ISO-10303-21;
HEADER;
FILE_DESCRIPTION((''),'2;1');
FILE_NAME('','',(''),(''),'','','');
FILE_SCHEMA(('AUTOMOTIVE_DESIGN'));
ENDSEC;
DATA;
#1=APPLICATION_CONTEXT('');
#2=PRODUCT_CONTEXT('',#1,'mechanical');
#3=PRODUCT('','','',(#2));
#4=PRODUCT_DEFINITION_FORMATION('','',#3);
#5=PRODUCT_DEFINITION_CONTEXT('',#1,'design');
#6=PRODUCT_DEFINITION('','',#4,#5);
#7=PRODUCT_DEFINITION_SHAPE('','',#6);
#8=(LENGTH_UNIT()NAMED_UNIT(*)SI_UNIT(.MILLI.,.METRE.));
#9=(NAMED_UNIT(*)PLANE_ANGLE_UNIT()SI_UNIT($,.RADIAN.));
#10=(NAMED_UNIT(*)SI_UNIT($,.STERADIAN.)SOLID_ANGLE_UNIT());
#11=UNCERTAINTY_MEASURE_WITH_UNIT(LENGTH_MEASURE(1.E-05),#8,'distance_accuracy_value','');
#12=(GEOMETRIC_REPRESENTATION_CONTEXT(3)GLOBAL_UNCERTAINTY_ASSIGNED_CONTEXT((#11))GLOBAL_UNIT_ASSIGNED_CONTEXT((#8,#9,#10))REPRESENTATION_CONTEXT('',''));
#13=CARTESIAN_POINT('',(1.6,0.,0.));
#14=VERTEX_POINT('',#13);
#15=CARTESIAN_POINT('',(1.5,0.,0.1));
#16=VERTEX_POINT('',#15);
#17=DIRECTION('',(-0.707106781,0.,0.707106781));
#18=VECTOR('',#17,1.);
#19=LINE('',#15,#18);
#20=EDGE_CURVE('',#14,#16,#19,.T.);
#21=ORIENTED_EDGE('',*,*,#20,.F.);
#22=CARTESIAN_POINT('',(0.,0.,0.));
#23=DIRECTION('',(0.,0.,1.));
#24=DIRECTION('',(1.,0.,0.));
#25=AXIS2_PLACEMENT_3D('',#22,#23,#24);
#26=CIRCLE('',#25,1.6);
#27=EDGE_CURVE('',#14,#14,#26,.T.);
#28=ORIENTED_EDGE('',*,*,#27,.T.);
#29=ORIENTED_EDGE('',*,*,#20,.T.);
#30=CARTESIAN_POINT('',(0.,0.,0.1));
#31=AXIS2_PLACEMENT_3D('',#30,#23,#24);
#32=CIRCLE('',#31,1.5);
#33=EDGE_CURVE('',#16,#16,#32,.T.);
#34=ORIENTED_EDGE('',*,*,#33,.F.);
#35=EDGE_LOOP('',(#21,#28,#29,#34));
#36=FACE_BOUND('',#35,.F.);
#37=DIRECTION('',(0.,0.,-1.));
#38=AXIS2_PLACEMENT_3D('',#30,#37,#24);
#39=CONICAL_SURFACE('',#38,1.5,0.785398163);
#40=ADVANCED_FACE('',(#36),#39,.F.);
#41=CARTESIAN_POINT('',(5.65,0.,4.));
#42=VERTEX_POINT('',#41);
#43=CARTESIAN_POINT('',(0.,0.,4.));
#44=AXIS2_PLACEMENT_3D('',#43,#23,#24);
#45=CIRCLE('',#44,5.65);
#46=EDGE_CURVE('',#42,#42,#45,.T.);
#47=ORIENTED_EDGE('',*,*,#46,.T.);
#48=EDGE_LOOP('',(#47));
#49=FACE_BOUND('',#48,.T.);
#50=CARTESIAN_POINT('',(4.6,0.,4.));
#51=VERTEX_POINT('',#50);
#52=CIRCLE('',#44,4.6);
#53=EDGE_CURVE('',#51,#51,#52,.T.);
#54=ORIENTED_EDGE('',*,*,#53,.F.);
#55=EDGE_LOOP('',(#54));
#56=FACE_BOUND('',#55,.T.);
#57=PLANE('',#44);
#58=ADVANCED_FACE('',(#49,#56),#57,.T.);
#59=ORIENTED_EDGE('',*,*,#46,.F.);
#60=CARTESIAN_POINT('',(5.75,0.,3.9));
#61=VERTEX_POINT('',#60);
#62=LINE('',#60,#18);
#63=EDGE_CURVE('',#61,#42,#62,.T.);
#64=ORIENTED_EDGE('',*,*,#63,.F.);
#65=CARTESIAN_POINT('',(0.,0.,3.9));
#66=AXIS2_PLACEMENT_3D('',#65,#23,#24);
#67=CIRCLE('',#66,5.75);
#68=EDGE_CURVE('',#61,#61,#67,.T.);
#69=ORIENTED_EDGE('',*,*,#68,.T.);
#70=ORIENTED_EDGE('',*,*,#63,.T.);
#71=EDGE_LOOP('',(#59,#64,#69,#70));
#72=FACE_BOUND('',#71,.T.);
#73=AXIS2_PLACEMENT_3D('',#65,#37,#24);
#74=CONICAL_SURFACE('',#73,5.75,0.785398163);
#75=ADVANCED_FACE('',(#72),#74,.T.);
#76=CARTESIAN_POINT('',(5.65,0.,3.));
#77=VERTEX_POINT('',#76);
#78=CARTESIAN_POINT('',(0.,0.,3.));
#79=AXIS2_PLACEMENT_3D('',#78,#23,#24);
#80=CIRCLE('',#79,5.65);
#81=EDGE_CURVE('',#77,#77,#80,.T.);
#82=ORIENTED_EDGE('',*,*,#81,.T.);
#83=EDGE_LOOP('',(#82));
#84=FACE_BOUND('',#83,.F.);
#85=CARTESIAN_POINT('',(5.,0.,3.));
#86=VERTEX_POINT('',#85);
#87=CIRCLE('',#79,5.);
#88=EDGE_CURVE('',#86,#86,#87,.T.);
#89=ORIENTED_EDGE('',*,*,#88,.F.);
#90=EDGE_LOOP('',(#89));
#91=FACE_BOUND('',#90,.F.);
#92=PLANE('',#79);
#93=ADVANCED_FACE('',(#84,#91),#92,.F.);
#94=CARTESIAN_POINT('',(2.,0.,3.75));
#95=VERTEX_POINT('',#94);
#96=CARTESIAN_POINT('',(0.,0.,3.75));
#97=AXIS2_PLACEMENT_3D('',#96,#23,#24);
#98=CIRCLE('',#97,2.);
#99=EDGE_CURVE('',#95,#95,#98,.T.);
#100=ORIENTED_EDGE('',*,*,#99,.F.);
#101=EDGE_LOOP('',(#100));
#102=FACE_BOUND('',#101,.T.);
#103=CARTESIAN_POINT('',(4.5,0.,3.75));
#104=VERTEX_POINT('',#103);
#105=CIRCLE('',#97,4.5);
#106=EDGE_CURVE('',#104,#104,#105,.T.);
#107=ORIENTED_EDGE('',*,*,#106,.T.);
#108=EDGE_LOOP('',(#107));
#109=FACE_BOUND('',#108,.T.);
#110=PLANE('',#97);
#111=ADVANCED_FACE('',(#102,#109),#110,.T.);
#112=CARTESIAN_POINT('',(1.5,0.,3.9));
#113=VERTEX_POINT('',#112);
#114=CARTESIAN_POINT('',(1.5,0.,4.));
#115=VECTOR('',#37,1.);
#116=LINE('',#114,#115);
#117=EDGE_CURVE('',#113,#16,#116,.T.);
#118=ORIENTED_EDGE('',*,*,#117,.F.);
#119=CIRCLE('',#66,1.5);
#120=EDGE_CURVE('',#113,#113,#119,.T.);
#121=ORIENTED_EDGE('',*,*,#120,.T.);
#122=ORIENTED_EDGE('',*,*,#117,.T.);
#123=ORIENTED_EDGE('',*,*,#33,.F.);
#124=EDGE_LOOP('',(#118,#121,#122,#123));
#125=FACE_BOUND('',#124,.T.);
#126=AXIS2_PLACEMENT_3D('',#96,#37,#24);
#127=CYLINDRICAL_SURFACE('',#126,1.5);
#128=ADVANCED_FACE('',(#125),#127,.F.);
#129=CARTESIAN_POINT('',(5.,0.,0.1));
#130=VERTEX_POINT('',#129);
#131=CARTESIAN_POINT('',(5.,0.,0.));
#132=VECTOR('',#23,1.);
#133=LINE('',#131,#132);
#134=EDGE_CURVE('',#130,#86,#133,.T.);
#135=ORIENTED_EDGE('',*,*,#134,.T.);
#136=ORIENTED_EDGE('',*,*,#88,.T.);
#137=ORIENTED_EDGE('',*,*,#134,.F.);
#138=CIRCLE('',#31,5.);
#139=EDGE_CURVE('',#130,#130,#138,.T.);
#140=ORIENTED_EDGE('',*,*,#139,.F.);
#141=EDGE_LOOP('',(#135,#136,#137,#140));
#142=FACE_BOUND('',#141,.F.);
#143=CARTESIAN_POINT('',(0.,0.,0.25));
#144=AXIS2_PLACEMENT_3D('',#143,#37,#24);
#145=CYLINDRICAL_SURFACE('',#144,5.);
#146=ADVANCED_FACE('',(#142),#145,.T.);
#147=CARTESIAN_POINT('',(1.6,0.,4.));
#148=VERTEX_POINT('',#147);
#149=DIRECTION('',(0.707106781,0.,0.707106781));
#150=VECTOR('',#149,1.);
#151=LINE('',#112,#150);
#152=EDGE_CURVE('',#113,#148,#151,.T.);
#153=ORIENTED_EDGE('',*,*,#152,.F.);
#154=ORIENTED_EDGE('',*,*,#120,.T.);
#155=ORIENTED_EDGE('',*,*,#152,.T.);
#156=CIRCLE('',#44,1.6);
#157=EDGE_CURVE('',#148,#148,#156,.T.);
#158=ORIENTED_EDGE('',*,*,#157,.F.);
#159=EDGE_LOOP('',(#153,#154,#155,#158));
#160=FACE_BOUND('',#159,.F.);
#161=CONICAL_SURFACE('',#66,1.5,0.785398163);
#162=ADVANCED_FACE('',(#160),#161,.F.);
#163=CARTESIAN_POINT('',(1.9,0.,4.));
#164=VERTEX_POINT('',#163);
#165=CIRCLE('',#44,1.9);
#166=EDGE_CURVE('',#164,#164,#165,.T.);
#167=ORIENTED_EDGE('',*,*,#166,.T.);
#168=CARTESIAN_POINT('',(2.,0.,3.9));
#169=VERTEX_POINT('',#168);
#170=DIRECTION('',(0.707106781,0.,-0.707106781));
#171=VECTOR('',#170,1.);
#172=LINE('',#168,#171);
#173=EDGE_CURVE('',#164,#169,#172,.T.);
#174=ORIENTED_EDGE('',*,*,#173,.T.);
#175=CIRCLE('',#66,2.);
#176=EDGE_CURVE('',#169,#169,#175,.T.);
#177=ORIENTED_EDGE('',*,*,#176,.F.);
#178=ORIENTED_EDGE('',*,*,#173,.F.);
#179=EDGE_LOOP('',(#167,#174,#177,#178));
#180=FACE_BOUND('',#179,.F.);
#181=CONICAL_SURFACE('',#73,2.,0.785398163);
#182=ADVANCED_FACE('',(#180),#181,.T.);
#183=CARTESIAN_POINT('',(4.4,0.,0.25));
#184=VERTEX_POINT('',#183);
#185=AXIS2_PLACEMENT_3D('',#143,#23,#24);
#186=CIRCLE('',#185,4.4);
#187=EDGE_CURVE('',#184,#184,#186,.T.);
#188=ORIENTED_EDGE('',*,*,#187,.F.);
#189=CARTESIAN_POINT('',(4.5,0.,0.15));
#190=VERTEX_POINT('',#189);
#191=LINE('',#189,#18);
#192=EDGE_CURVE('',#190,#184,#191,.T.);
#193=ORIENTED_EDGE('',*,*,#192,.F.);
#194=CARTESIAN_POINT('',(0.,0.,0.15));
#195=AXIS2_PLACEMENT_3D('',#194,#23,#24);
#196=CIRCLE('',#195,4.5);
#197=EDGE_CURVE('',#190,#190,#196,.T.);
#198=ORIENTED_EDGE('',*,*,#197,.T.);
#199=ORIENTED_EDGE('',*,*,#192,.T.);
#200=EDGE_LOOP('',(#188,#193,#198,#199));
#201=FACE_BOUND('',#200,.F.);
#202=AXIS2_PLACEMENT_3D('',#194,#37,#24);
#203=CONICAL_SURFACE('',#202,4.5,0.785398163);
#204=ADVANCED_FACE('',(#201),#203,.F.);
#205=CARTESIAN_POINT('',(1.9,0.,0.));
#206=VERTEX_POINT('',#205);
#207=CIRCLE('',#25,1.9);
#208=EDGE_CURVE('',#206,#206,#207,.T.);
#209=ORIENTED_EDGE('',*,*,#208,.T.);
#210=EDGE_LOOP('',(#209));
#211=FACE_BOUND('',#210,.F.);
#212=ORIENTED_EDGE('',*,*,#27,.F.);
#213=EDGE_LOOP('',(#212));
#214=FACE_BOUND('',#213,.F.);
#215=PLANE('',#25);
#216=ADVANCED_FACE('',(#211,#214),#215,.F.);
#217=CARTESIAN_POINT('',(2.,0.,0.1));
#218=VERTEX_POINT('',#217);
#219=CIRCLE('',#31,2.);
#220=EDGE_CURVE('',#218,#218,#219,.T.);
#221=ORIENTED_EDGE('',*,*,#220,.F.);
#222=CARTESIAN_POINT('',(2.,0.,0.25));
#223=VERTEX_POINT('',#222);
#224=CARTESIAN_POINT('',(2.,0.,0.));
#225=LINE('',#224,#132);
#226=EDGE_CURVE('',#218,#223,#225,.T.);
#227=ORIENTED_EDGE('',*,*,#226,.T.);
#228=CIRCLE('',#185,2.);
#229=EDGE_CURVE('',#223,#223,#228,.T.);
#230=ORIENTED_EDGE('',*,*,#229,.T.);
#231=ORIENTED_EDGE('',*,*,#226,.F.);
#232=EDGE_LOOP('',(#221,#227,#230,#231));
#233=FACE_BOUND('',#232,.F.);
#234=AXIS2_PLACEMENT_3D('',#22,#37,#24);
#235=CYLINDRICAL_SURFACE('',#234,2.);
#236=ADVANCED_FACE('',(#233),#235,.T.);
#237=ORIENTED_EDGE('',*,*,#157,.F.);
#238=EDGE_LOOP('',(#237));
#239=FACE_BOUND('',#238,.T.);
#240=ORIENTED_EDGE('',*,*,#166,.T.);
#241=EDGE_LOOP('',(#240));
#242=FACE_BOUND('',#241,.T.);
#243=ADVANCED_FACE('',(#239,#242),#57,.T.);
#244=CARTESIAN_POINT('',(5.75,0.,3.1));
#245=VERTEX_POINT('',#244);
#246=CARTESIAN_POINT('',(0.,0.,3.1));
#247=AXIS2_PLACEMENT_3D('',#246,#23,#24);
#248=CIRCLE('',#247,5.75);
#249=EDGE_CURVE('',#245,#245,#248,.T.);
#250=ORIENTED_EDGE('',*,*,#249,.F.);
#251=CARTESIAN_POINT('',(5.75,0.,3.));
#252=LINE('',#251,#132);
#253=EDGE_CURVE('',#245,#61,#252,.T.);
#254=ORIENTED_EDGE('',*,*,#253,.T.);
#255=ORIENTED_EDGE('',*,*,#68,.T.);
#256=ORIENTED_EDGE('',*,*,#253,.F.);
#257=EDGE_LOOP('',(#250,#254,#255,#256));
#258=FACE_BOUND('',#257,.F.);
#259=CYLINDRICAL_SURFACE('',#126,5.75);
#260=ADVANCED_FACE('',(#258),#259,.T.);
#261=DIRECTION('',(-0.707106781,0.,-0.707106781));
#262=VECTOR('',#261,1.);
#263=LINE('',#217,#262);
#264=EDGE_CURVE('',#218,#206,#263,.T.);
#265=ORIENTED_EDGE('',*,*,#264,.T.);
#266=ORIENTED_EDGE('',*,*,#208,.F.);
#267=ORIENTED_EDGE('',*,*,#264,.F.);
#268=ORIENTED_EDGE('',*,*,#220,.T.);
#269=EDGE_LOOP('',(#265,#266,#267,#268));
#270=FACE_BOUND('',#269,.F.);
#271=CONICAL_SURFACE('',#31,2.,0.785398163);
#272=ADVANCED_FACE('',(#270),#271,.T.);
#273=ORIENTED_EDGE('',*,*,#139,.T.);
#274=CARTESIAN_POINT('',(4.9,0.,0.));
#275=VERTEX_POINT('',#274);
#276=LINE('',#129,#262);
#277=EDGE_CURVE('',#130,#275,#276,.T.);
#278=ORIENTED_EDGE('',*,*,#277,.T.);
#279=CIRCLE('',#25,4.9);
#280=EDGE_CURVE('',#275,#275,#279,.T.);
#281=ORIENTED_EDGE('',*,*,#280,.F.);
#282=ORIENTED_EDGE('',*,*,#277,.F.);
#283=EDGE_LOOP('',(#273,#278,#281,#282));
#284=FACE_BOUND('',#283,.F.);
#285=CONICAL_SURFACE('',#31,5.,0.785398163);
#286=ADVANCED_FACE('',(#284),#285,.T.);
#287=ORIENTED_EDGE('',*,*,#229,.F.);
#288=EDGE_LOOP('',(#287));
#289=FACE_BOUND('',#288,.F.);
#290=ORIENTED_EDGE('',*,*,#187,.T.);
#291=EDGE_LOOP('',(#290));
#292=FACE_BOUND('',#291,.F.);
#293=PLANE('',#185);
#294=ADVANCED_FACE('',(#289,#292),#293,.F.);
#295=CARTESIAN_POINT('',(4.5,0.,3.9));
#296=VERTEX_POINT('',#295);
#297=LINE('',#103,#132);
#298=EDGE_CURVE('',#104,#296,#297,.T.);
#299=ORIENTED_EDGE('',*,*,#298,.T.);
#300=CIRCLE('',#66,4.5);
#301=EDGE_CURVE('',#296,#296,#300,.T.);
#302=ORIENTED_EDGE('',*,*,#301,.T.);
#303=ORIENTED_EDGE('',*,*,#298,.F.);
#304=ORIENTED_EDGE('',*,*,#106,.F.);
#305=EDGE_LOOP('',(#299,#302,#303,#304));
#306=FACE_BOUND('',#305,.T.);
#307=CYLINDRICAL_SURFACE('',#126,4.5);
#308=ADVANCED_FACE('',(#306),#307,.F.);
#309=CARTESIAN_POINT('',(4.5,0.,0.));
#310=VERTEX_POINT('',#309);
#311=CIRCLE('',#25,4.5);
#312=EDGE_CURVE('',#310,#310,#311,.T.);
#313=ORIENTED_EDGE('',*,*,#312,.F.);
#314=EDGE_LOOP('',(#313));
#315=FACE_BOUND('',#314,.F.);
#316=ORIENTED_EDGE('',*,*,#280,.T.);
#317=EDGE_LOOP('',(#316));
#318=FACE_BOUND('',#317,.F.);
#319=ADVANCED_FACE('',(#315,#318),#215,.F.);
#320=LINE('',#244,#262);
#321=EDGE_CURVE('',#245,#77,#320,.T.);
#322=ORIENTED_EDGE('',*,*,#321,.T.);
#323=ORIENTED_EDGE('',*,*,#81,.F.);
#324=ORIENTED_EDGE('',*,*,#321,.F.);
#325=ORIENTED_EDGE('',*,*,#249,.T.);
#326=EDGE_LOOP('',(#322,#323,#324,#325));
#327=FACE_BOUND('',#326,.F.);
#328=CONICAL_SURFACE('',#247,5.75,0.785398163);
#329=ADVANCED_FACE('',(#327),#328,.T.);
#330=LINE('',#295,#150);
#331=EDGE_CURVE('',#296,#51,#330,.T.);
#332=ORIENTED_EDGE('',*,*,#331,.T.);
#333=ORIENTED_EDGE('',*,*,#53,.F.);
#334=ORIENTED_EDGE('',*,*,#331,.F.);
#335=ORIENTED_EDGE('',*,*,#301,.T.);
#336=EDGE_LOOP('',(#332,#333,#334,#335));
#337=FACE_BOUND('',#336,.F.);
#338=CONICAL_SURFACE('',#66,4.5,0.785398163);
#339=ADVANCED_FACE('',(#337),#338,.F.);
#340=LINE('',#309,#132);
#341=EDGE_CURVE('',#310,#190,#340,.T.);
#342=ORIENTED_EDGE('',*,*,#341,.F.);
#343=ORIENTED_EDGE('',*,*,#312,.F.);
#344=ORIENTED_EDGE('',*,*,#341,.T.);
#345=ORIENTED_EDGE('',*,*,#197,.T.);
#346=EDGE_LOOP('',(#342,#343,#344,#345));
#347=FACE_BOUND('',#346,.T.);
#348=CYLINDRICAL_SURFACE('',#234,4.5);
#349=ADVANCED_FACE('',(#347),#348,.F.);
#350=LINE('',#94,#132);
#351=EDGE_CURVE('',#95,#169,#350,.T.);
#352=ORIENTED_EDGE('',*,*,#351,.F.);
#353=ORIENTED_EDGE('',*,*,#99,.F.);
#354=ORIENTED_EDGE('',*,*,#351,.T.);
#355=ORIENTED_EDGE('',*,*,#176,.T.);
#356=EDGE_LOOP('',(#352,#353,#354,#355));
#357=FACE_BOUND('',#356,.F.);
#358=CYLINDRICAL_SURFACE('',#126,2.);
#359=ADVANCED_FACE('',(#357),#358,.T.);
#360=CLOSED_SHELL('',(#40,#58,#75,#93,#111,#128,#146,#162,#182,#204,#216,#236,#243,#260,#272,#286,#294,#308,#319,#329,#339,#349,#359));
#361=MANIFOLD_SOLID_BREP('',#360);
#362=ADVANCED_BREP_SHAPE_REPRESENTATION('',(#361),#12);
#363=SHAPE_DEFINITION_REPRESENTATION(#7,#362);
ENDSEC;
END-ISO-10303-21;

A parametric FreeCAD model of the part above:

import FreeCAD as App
import Part
import Sketcher
from FreeCAD import Vector


def edges_at(feature, points):
    """Names of the edges that pass closest to the given points."""
    edges = feature.Shape.Edges
    near = lambda p: min(range(len(edges)), key=lambda i: edges[i].distToShape(Part.Vertex(*p))[0])
    return sorted({f"Edge{near(p) + 1}" for p in points})

doc = App.newDocument("Part")
body = doc.addObject("PartDesign::Body", "Body")

# Sketch on XY plane
sketch1 = body.newObject("Sketcher::SketchObject", "Sketch")
sketch1.AttachmentSupport = (doc.getObject("XY_Plane"), [""])
sketch1.MapMode = "FlatFace"
sketch1.addGeometry([
    Part.Circle(Vector(0, 0, 0), Vector(0, 0, 1), 2),
    Part.Circle(Vector(0, 0, 0), Vector(0, 0, 1), 1.5),
], False)
sketch1.addConstraint([
    Sketcher.Constraint("Coincident", 0, 3, -1, 1),
    Sketcher.Constraint("Coincident", 1, 3, -1, 1),
    Sketcher.Constraint("Diameter", 0, 4.0),
    Sketcher.Constraint("Diameter", 1, 3.0),
])
pad1 = body.newObject("PartDesign::Pad", "Pad")
pad1.Profile = sketch1
pad1.Length = 0.25
body2 = doc.addObject("PartDesign::Body", "Body001")

# Sketch on XY plane
sketch2 = body2.newObject("Sketcher::SketchObject", "Sketch001")
sketch2.AttachmentSupport = (doc.getObject("XY_Plane001"), [""])
sketch2.MapMode = "FlatFace"
sketch2.addGeometry([
    Part.Circle(Vector(0, 0, 0), Vector(0, 0, 1), 5),
    Part.Circle(Vector(0, 0, 0), Vector(0, 0, 1), 4.5),
], False)
sketch2.addConstraint([
    Sketcher.Constraint("Coincident", 0, 3, -1, 1),
    Sketcher.Constraint("Coincident", 1, 3, -1, 1),
    Sketcher.Constraint("Diameter", 0, 10.0),
    Sketcher.Constraint("Diameter", 1, 9.0),
])
pad2 = body2.newObject("PartDesign::Pad", "Pad001")
pad2.Profile = sketch2
pad2.Length = 0.25
body.AllowCompound = True
doc.recompute()

boolean = body.newObject("PartDesign::Boolean", "Boolean")
boolean.Type = "Fuse"
boolean.addObjects([body2])

# Sketch on XY plane
sketch3 = body.newObject("Sketcher::SketchObject", "Sketch002")
sketch3.AttachmentSupport = (doc.getObject("XY_Plane"), [""])
sketch3.MapMode = "FlatFace"
sketch3.AttachmentOffset = App.Placement(Vector(0, 0, 0.25), App.Rotation())
sketch3.addGeometry([
    Part.Circle(Vector(0, 0, 0), Vector(0, 0, 1), 5),
    Part.Circle(Vector(0, 0, 0), Vector(0, 0, 1), 1.5),
], False)
sketch3.addConstraint([
    Sketcher.Constraint("Coincident", 0, 3, -1, 1),
    Sketcher.Constraint("Coincident", 1, 3, -1, 1),
    Sketcher.Constraint("Diameter", 0, 10.0),
    Sketcher.Constraint("Diameter", 1, 3.0),
])
pad3 = body.newObject("PartDesign::Pad", "Pad002")
pad3.Profile = sketch3
pad3.Length = 2.75

# Sketch on XY plane
sketch4 = body.newObject("Sketcher::SketchObject", "Sketch003")
sketch4.AttachmentSupport = (doc.getObject("XY_Plane"), [""])
sketch4.MapMode = "FlatFace"
sketch4.AttachmentOffset = App.Placement(Vector(0, 0, 3), App.Rotation())
sketch4.addGeometry([
    Part.Circle(Vector(0, 0, 0), Vector(0, 0, 1), 5.8),
    Part.Circle(Vector(0, 0, 0), Vector(0, 0, 1), 1.5),
], False)
sketch4.addConstraint([
    Sketcher.Constraint("Coincident", 0, 3, -1, 1),
    Sketcher.Constraint("Coincident", 1, 3, -1, 1),
    Sketcher.Constraint("Diameter", 1, 3.0),
    Sketcher.Constraint("Diameter", 0, 11.5),
])
pad4 = body.newObject("PartDesign::Pad", "Pad003")
pad4.Profile = sketch4
pad4.Length = 0.75

# Sketch on XY plane
sketch5 = body.newObject("Sketcher::SketchObject", "Sketch004")
sketch5.AttachmentSupport = (doc.getObject("XY_Plane"), [""])
sketch5.MapMode = "FlatFace"
sketch5.AttachmentOffset = App.Placement(Vector(0, 0, 3.75), App.Rotation())
sketch5.addGeometry([
    Part.Circle(Vector(0, 0, 0), Vector(0, 0, 1), 5.8),
    Part.Circle(Vector(0, 0, 0), Vector(0, 0, 1), 4.5),
    Part.Circle(Vector(0, 0, 0), Vector(0, 0, 1), 2),
    Part.Circle(Vector(0, 0, 0), Vector(0, 0, 1), 1.5),
], False)
sketch5.addConstraint([
    Sketcher.Constraint("Coincident", 0, 3, -1, 1),
    Sketcher.Constraint("Coincident", 1, 3, -1, 1),
    Sketcher.Constraint("Coincident", 2, 3, -1, 1),
    Sketcher.Constraint("Coincident", 3, 3, -1, 1),
    Sketcher.Constraint("Diameter", 1, 9.0),
    Sketcher.Constraint("Diameter", 2, 4.0),
    Sketcher.Constraint("Diameter", 3, 3.0),
    Sketcher.Constraint("Diameter", 0, 11.5),
])
pad5 = body.newObject("PartDesign::Pad", "Pad004")
pad5.Profile = sketch5
pad5.Length = 0.25
doc.recompute()

chamfer = body.newObject("PartDesign::Chamfer", "Chamfer")
chamfer.Base = (pad5, edges_at(pad5, [
    (-5, 0, 0),
    (-5.75, 0, 3),
    (-5.75, 0, 4),
    (-4.5, 0, 4),
    (-4.5, 0, 0.25),
    (-2, 0, 0),
    (-1.5, 0, 0),
    (-2, 0, 4),
    (-1.5, 0, 4),
]))
chamfer.Size = 0.1

doc.recompute()
